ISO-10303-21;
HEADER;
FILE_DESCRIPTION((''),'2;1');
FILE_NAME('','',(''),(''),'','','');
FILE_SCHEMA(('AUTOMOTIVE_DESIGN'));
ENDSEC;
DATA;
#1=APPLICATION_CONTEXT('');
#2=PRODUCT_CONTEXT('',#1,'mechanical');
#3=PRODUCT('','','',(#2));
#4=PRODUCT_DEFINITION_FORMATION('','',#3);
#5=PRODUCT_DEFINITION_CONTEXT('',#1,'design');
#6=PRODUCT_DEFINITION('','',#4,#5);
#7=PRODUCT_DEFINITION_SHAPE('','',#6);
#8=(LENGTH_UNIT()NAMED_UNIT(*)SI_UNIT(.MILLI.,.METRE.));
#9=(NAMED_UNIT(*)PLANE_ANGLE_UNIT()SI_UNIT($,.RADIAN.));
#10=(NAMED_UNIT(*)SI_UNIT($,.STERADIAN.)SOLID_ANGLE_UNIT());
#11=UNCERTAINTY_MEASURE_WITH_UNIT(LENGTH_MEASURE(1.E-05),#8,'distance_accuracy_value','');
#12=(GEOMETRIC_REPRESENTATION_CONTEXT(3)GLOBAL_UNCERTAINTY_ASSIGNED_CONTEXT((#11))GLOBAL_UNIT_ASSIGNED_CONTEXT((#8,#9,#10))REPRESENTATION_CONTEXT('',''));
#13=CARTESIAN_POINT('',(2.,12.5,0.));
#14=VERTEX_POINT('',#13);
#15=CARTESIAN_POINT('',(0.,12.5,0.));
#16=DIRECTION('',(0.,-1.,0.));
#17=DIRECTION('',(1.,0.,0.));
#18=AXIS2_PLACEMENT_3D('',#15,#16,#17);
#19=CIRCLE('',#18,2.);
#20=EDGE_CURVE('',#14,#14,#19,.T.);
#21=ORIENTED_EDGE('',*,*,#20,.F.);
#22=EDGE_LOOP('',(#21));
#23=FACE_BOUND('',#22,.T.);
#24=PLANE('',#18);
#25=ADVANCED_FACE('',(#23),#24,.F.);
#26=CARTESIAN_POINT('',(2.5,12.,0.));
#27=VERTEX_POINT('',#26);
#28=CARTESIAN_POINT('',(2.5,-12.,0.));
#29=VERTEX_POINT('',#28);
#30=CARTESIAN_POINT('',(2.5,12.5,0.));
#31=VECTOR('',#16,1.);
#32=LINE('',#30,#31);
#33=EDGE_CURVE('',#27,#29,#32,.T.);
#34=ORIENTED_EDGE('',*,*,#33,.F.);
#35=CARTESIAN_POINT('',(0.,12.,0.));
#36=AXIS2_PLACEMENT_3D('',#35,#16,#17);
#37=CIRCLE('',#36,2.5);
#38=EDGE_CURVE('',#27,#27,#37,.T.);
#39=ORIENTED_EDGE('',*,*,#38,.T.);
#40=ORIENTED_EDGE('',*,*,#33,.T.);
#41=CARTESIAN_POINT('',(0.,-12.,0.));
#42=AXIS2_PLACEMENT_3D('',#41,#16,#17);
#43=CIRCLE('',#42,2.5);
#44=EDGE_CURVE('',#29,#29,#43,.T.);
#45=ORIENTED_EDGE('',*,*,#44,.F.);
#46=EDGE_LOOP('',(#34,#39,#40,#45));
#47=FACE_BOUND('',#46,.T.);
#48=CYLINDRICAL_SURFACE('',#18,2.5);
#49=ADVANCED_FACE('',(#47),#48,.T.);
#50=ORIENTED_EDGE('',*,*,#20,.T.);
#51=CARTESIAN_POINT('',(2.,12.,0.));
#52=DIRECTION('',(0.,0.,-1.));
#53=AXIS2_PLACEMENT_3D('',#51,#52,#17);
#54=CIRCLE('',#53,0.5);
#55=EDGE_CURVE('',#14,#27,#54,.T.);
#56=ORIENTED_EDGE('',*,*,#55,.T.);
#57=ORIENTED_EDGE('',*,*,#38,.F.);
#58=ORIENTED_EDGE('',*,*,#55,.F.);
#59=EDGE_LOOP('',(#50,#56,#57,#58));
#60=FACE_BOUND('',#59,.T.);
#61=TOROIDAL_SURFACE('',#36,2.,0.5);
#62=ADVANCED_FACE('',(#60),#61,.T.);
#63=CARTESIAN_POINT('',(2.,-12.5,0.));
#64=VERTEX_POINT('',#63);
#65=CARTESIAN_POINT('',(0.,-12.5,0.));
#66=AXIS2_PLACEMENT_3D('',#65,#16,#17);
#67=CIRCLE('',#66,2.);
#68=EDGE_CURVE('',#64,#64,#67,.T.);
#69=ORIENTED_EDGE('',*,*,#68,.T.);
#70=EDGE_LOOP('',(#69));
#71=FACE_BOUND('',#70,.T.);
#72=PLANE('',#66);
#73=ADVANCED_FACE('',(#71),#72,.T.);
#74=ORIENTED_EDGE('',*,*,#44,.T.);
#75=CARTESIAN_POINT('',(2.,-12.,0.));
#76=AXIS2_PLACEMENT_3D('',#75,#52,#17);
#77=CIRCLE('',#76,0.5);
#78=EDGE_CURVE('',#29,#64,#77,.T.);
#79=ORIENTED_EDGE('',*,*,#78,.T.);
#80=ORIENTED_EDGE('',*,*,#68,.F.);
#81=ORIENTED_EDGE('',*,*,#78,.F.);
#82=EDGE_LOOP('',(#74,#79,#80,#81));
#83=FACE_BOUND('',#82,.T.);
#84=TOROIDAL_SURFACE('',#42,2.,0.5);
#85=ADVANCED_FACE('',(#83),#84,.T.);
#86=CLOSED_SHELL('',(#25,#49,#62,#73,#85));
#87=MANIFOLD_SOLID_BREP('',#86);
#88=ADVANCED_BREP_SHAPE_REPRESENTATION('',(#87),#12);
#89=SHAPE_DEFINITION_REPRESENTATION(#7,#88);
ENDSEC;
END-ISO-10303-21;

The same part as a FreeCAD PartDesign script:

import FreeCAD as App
import Part
import Sketcher
from FreeCAD import Vector


def edges_at(feature, points):
    """Names of the edges that pass closest to the given points."""
    edges = feature.Shape.Edges
    near = lambda p: min(range(len(edges)), key=lambda i: edges[i].distToShape(Part.Vertex(*p))[0])
    return sorted({f"Edge{near(p) + 1}" for p in points})

doc = App.newDocument("Part")
body = doc.addObject("PartDesign::Body", "Body")

sketch1 = body.newObject("Sketcher::SketchObject", "Sketch")
sketch1.AttachmentSupport = (doc.getObject("XY_Plane"), [""])
sketch1.MapMode = "FlatFace"
sketch1.addGeometry(Part.LineSegment(Vector(2.5, 12.5, 0), Vector(0, 12.5, 0)), False)
sketch1.addGeometry(Part.LineSegment(Vector(0, 12.5, 0), Vector(0, -12.5, 0)), False)
sketch1.addGeometry(Part.LineSegment(Vector(0, -12.5, 0), Vector(2.5, -12.5, 0)), False)
sketch1.addGeometry(Part.LineSegment(Vector(2.5, -12.5, 0), Vector(2.5, 12.5, 0)), False)
sketch1.addConstraint(Sketcher.Constraint("Coincident", 0, 2, 1, 1))
sketch1.addConstraint(Sketcher.Constraint("Coincident", 1, 2, 2, 1))
sketch1.addConstraint(Sketcher.Constraint("Coincident", 2, 2, 3, 1))
sketch1.addConstraint(Sketcher.Constraint("Coincident", 3, 2, 0, 1))
sketch1.addConstraint(Sketcher.Constraint("Horizontal", 0))
sketch1.addConstraint(Sketcher.Constraint("Vertical", 1))
sketch1.addConstraint(Sketcher.Constraint("Horizontal", 2))
sketch1.addConstraint(Sketcher.Constraint("Vertical", 3))
sketch1.addConstraint(Sketcher.Constraint("Symmetric", 0, 2, 1, 2, -1, 1))
sketch1.addConstraint(Sketcher.Constraint("DistanceY", 1, 2, 1, 1, 25.0))
sketch1.addConstraint(Sketcher.Constraint("DistanceX", 0, 2, 0, 1, 2.5))
revolution = body.newObject("PartDesign::Revolution", "Revolution")
revolution.Profile = sketch1
revolution.ReferenceAxis = (sketch1, ["V_Axis"])
revolution.Angle = 360
doc.recompute()

fillet = body.newObject("PartDesign::Fillet", "Fillet")
fillet.Base = (revolution, edges_at(revolution, [(-2.5, 12.5, 0), (-2.5, -12.5, 0)]))
fillet.Radius = 0.5

doc.recompute()
